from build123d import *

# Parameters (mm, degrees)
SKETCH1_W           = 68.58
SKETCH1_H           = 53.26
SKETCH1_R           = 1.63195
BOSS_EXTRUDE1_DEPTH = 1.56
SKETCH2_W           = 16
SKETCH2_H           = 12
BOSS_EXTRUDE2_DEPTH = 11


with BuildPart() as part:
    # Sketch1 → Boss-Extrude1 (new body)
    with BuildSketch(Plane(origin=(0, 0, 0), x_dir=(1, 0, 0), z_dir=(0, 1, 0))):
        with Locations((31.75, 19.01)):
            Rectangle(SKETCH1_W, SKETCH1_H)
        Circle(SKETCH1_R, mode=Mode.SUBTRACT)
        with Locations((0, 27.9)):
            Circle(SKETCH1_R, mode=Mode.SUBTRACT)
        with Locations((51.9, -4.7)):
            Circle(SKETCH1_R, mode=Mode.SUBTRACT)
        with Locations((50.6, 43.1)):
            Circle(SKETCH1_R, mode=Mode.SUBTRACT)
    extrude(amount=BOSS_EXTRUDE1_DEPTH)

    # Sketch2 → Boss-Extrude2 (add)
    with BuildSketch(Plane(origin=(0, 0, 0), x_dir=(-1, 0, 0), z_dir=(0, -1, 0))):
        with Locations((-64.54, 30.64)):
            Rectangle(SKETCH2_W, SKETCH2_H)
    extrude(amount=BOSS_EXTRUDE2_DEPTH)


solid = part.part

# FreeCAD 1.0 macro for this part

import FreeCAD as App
import Part
import Sketcher
from FreeCAD import Vector
Q = App.Units.Quantity


def add_polygon(sketch, points):
    """Adds a closed chain of lines whose ends are joined by coincident constraints."""
    first, n = sketch.GeometryCount, len(points)
    for a, b in zip(points, points[1:] + points[:1]):
        sketch.addGeometry(Part.LineSegment(App.Vector(*a, 0), App.Vector(*b, 0)), False)
    for i in range(n):
        sketch.addConstraint(Sketcher.Constraint("Coincident", first + i, 2, first + (i + 1) % n, 1))

doc = App.newDocument("Part")
body = doc.addObject("PartDesign::Body", "Body")

sketch1 = body.newObject("Sketcher::SketchObject", "Sketch")
sketch1.AttachmentSupport = (doc.getObject("XZ_Plane"), [""])
sketch1.MapMode = "FlatFace"
add_polygon(sketch1, [(-2.54, -45.64), (-2.54, 7.62), (66.04, 7.62), (66.04, -45.64)])
sketch1.addGeometry(Part.Circle(Vector(0, 0, 0), Vector(0, 0, 1), 1.63195), False)
sketch1.addGeometry(Part.Circle(Vector(51.9, 4.7, 0), Vector(0, 0, 1), 1.63195), False)
sketch1.addGeometry(Part.Circle(Vector(0, -27.9, 0), Vector(0, 0, 1), 1.63195), False)
sketch1.addGeometry(Part.Circle(Vector(50.6, -43.1, 0), Vector(0, 0, 1), 1.63195), False)
sketch1.addConstraint([
    Sketcher.Constraint("Vertical", 0),
    Sketcher.Constraint("Horizontal", 1),
    Sketcher.Constraint("Vertical", 2),
    Sketcher.Constraint("Horizontal", 3),
    Sketcher.Constraint("Coincident", 4, 3, -1, 1),
    Sketcher.Constraint("Equal", 4, 5),
    Sketcher.Constraint("Equal", 5, 6),
    Sketcher.Constraint("Equal", 6, 7),
    Sketcher.Constraint("PointOnObject", 6, 3, -2),
    Sketcher.Constraint("Diameter", 4, Q("3.2639 mm")),
    Sketcher.Constraint("DistanceX", 1, 1, 1, 2, Q("68.58 mm")),
    Sketcher.Constraint("DistanceY", 0, 1, 0, 2, Q("53.26 mm")),
    Sketcher.Constraint("DistanceX", -1, 1, 5, 3, Q("51.9 mm")),
    Sketcher.Constraint("DistanceY", -1, 1, 5, 3, Q("4.7 mm")),
    Sketcher.Constraint("DistanceY", 6, 3, -1, 1, Q("27.9 mm")),
    Sketcher.Constraint("DistanceX", -1, 1, 7, 3, Q("50.6 mm")),
    Sketcher.Constraint("DistanceY", 7, 3, -1, 1, Q("43.1 mm")),
    Sketcher.Constraint("DistanceX", 0, 2, -1, 1, Q("2.54 mm")),
    Sketcher.Constraint("DistanceY", -1, 1, 0, 2, Q("7.62 mm")),
])
pad1 = body.newObject("PartDesign::Pad", "Pad")
pad1.Profile = sketch1
pad1.Length = 1.56
pad1.Reversed = True

sketch2 = body.newObject("Sketcher::SketchObject", "Sketch001")
sketch2.AttachmentSupport = (doc.getObject("XZ_Plane"), [""])
sketch2.MapMode = "FlatFace"
add_polygon(sketch2, [(72.54, -36.64), (72.54, -24.64), (56.54, -24.64), (56.54, -36.64)])
sketch2.addConstraint([
    Sketcher.Constraint("Vertical", 0),
    Sketcher.Constraint("Horizontal", 1),
    Sketcher.Constraint("Vertical", 2),
    Sketcher.Constraint("Horizontal", 3),
    Sketcher.Constraint("DistanceX", 1, 2, 1, 1, Q("16 mm")),
    Sketcher.Constraint("DistanceY", 0, 1, 0, 2, Q("12 mm")),
    Sketcher.Constraint("DistanceX", -1, 1, 0, 2, Q("72.54 mm")),
    Sketcher.Constraint("DistanceY", 0, 2, -1, 1, Q("24.64 mm")),
])
pad2 = body.newObject("PartDesign::Pad", "Pad001")
pad2.Profile = sketch2
pad2.Length = 11

doc.recompute()
